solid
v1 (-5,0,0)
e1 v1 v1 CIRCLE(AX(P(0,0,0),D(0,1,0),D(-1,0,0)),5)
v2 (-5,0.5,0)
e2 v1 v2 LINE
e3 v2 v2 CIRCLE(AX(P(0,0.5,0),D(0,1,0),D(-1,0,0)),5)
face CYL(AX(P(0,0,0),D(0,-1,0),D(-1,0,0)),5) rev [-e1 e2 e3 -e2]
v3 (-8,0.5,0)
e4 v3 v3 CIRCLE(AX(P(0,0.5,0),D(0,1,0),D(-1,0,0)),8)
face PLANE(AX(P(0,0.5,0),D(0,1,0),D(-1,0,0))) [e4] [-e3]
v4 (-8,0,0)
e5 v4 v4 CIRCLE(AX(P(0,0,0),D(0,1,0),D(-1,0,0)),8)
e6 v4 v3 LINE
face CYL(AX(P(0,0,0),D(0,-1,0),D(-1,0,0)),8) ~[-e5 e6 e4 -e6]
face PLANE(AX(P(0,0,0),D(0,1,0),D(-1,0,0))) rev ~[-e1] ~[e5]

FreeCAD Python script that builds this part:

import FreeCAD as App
import Part
import Sketcher

doc = App.newDocument("Part")
body = doc.addObject("PartDesign::Body", "Body")

sketch1 = body.newObject("Sketcher::SketchObject", "Sketch")
sketch1.AttachmentSupport = (doc.getObject("XZ_Plane"), [""])
sketch1.MapMode = "FlatFace"
sketch1.addGeometry([
    Part.Circle(App.Vector(0, 0, 0), App.Vector(0, 0, 1), 8),
    Part.Circle(App.Vector(0, 0, 0), App.Vector(0, 0, 1), 5),
], False)
sketch1.addConstraint([
    Sketcher.Constraint("Coincident", 0, 3, -1, 1),
    Sketcher.Constraint("Coincident", 1, 3, -1, 1),
    Sketcher.Constraint("Diameter", 0, 16.0),
    Sketcher.Constraint("Diameter", 1, 10.0),
])
pad1 = body.newObject("PartDesign::Pad", "Pad")
pad1.Profile = sketch1
pad1.Length = 0.5
pad1.Reversed = True

doc.recompute()
